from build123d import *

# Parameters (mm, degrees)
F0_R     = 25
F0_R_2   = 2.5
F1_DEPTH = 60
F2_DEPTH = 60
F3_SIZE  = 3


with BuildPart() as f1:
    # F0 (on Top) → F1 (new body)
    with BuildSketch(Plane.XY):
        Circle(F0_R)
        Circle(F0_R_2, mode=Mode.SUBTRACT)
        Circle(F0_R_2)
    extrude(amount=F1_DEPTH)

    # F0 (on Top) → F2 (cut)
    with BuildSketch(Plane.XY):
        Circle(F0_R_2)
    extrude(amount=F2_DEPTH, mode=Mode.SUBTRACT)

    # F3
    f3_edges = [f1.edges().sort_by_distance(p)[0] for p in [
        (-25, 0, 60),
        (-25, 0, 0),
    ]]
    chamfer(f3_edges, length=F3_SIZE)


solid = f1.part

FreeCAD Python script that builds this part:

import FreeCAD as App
import Part
import Sketcher

V = App.Vector
Q = App.Units.Quantity


def edges_at(feature, points):
    """Names of the edges that pass closest to the given points."""
    edges = feature.Shape.Edges
    near = lambda p: min(range(len(edges)), key=lambda i: edges[i].distToShape(Part.Vertex(*p))[0])
    return sorted({f"Edge{near(p) + 1}" for p in points})

doc = App.newDocument("Part")
body = doc.addObject("PartDesign::Body", "Body")

sketch1 = doc.addObject("Sketcher::SketchObject", "Sketch")
body.addObject(sketch1)
sketch1.AttachmentSupport = (doc.XY_Plane, [""])
sketch1.MapMode = "FlatFace"
sketch1.addGeometry(Part.Circle(V(0, 0, 0), V(0, 0, 1), 25), False)
sketch1.addConstraint([
    Sketcher.Constraint("Coincident", 0, 3, -1, 1),
    Sketcher.Constraint("Diameter", 0, Q("50 mm")),
])
pad1 = doc.addObject("PartDesign::Pad", "Pad")
body.addObject(pad1)
pad1.Profile = sketch1
pad1.Length = 60

sketch2 = doc.addObject("Sketcher::SketchObject", "Sketch001")
body.addObject(sketch2)
sketch2.AttachmentSupport = (doc.XY_Plane, [""])
sketch2.MapMode = "FlatFace"
sketch2.addGeometry(Part.Circle(V(0, 0, 0), V(0, 0, 1), 2.5), False)
sketch2.addConstraint([
    Sketcher.Constraint("Coincident", 0, 3, -1, 1),
    Sketcher.Constraint("Diameter", 0, Q("5 mm")),
])
pocket1 = doc.addObject("PartDesign::Pocket", "Pocket")
body.addObject(pocket1)
pocket1.Profile = sketch2
pocket1.Length = 60
pocket1.Reversed = True
doc.recompute()

chamfer = doc.addObject("PartDesign::Chamfer", "Chamfer")
body.addObject(chamfer)
chamfer.Base = (pocket1, edges_at(pocket1, [(-25, 0, 60), (-25, 0, 0)]))
chamfer.Size = 3

doc.recompute()
